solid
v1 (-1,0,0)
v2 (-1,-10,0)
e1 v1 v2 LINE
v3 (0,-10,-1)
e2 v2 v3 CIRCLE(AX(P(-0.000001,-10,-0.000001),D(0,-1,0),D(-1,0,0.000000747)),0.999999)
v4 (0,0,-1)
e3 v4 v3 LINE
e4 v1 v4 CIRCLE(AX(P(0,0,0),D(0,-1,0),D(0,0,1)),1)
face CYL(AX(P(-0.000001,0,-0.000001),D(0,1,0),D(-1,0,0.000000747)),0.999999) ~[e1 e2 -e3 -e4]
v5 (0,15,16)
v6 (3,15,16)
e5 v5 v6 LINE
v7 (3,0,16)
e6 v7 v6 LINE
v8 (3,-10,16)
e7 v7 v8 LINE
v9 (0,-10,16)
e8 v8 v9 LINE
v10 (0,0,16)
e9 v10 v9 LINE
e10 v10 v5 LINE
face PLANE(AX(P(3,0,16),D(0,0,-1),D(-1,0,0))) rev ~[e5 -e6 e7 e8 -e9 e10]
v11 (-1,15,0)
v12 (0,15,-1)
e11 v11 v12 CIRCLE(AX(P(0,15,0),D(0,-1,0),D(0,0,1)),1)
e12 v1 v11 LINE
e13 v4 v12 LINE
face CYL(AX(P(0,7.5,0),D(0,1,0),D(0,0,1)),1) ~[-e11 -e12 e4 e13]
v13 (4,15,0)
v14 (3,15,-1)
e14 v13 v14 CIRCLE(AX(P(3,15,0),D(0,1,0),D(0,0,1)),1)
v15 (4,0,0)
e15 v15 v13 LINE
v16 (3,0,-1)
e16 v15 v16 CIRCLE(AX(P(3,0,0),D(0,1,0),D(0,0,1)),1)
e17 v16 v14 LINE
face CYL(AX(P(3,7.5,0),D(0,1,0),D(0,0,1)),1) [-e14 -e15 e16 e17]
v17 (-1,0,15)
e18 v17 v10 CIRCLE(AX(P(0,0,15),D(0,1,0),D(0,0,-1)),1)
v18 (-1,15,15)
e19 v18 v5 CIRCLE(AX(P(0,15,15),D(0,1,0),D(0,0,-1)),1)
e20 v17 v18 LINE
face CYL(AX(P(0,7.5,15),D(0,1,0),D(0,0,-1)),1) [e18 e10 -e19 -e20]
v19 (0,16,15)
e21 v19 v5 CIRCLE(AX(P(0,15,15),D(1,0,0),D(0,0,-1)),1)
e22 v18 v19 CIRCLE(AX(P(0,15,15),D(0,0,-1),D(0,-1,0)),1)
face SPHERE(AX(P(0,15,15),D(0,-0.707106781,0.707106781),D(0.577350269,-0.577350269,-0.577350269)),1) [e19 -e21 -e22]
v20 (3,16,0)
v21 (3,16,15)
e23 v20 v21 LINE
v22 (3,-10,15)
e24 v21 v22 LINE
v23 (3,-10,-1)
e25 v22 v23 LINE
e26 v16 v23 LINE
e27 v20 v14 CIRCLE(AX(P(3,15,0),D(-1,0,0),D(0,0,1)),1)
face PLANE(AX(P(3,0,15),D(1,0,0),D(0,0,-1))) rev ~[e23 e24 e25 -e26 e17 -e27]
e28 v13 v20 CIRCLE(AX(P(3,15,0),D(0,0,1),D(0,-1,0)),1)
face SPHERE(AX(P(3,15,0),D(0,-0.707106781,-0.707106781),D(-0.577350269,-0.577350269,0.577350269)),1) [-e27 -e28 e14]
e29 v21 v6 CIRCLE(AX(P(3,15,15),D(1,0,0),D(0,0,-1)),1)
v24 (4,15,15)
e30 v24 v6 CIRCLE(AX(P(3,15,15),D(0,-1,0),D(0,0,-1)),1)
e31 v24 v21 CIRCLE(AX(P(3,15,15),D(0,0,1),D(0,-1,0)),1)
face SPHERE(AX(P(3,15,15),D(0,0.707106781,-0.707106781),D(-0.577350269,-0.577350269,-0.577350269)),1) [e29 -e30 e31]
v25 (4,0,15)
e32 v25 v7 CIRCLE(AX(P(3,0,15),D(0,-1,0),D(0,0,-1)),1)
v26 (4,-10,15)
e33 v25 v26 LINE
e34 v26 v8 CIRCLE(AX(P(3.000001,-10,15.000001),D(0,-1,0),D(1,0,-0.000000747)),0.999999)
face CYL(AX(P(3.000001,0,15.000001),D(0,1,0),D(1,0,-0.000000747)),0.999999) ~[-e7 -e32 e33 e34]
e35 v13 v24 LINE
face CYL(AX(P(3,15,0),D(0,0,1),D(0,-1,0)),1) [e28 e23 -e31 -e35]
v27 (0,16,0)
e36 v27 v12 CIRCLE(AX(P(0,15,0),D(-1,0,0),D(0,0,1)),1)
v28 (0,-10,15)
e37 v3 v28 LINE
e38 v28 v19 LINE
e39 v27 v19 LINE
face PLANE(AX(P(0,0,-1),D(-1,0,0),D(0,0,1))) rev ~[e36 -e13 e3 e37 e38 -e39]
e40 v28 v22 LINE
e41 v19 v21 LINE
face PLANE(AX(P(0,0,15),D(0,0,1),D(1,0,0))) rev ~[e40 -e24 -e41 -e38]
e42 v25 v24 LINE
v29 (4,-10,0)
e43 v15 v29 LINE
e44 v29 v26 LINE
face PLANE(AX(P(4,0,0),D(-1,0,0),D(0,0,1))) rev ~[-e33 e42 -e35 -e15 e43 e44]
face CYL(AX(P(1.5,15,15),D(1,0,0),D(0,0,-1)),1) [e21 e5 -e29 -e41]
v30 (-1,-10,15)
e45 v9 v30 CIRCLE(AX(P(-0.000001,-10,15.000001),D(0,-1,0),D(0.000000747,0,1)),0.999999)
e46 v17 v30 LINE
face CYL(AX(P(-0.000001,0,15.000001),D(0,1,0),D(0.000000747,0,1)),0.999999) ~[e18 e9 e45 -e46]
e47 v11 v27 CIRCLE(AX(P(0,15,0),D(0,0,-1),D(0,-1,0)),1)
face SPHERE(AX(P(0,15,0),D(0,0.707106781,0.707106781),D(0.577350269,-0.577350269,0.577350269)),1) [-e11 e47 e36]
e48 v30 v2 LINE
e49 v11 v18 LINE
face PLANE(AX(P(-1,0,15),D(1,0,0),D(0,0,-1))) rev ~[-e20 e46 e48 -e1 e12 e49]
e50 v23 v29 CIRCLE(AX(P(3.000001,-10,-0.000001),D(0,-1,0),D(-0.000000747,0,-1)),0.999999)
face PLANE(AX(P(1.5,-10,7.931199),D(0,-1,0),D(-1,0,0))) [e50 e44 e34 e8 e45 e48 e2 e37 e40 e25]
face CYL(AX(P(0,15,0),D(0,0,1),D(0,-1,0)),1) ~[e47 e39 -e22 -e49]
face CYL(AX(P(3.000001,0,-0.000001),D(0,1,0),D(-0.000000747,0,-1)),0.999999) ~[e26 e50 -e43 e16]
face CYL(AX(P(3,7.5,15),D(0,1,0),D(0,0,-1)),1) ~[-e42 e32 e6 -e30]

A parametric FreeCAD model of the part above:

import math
import FreeCAD as App
import Part
import Sketcher

V = App.Vector
Q = App.Units.Quantity


def faces_at(feature, points):
    """Names of the faces that lie closest to the given points."""
    faces = feature.Shape.Faces
    near = lambda p: min(range(len(faces)), key=lambda i: faces[i].distToShape(Part.Vertex(*p))[0])
    return sorted({f"Face{near(p) + 1}" for p in points})


def add_polygon(sketch, points):
    """Adds a closed chain of lines whose ends are joined by coincident constraints."""
    first, n = sketch.GeometryCount, len(points)
    for a, b in zip(points, points[1:] + points[:1]):
        sketch.addGeometry(Part.LineSegment(App.Vector(*a, 0), App.Vector(*b, 0)), False)
    for i in range(n):
        sketch.addConstraint(Sketcher.Constraint("Coincident", first + i, 2, first + (i + 1) % n, 1))

doc = App.newDocument("Part")
params = doc.addObject("Spreadsheet::Sheet", "Params")
for row, (alias, value) in enumerate([
    ("sketch1_width", "3 mm"),
    ("sketch1_height", "15 mm"),
    ("pad1_length", "15 mm"),
    ("thickness_wall", "1 mm"),
    ("sketch2_width", "3 mm"),
    ("sketch2_height", "15 mm"),
    ("pocket1_length", "5 mm"),
    ("sketch3_width", "3 mm"),
    ("sketch3_height", "15 mm"),
    ("pocket2_length", "5 mm"),
    ("sketch4_width", "3 mm"),
    ("sketch4_height", "1 mm"),
    ("pocket3_length", "5 mm"),
    ("sketch5_radius", "0.999999 mm"),
    ("sketch5_width", "3 mm"),
    ("sketch5_height", "16 mm"),
    ("pad2_length", "10 mm"),
], start=1):
    params.set(f"A{row}", alias)
    params.set(f"B{row}", "=" + value)
    params.setAlias(f"B{row}", alias)

body = doc.addObject("PartDesign::Body", "Body")

sketch1 = body.newObject("Sketcher::SketchObject", "Sketch")
sketch1.AttachmentSupport = (doc.getObject("XY_Plane"), [""])
sketch1.MapMode = "FlatFace"
add_polygon(sketch1, [(0, 15), (0, 0), (3, 0), (3, 15)])
sketch1.addConstraint(Sketcher.Constraint("Vertical", 0))
sketch1.addConstraint(Sketcher.Constraint("Horizontal", 1))
sketch1.addConstraint(Sketcher.Constraint("Vertical", 2))
sketch1.addConstraint(Sketcher.Constraint("Horizontal", 3))
sketch1.addConstraint(Sketcher.Constraint("Coincident", 0, 2, -1, 1))
sketch1.addConstraint(Sketcher.Constraint("DistanceX", 1, 1, 1, 2, Q("3 mm")))
sketch1.addConstraint(Sketcher.Constraint("DistanceY", 0, 2, 0, 1, Q("15 mm")))
sketch1.setExpression("Constraints[9]", "Params.sketch1_width")
sketch1.setExpression("Constraints[10]", "Params.sketch1_height")
pad1 = body.newObject("PartDesign::Pad", "Pad")
pad1.Profile = sketch1
pad1.setExpression("Length", "Params.pad1_length")
doc.recompute()

thickness = body.newObject("PartDesign::Thickness", "Thickness")
thickness.Base = (pad1, faces_at(pad1, [(1.5, 0, 7.5)]))
thickness.setExpression("Value", "Params.thickness_wall")
thickness.Reversed = False
thickness.Join = "Arc"

sketch2 = body.newObject("Sketcher::SketchObject", "Sketch001")
sketch2.AttachmentSupport = (doc.getObject("XZ_Plane"), [""])
sketch2.MapMode = "FlatFace"
sketch2.AttachmentOffset = App.Placement(V(0, 0, -15), App.Rotation())
add_polygon(sketch2, [(3, 0), (3, 15), (0, 15), (0, 0)])
sketch2.addConstraint(Sketcher.Constraint("Vertical", 0))
sketch2.addConstraint(Sketcher.Constraint("Horizontal", 1))
sketch2.addConstraint(Sketcher.Constraint("Vertical", 2))
sketch2.addConstraint(Sketcher.Constraint("Horizontal", 3))
sketch2.addConstraint(Sketcher.Constraint("Coincident", 2, 2, -1, 1))
sketch2.addConstraint(Sketcher.Constraint("DistanceX", 1, 2, 1, 1, Q("3 mm")))
sketch2.addConstraint(Sketcher.Constraint("DistanceY", 0, 1, 0, 2, Q("15 mm")))
sketch2.setExpression("Constraints[9]", "Params.sketch2_width")
sketch2.setExpression("Constraints[10]", "Params.sketch2_height")
pocket1 = body.newObject("PartDesign::Pocket", "Pocket")
pocket1.Profile = sketch2
pocket1.setExpression("Length", "Params.pocket1_length")

sketch3 = body.newObject("Sketcher::SketchObject", "Sketch002")
sketch3.AttachmentSupport = (doc.getObject("XY_Plane"), [""])
sketch3.MapMode = "FlatFace"
add_polygon(sketch3, [(0, 0), (3, 0), (3, 15), (0, 15)])
sketch3.addConstraint(Sketcher.Constraint("Horizontal", 0))
sketch3.addConstraint(Sketcher.Constraint("Vertical", 1))
sketch3.addConstraint(Sketcher.Constraint("Horizontal", 2))
sketch3.addConstraint(Sketcher.Constraint("Vertical", 3))
sketch3.addConstraint(Sketcher.Constraint("Coincident", 3, 2, -1, 1))
sketch3.addConstraint(Sketcher.Constraint("DistanceX", 0, 1, 0, 2, Q("3 mm")))
sketch3.addConstraint(Sketcher.Constraint("DistanceY", 1, 1, 1, 2, Q("15 mm")))
sketch3.setExpression("Constraints[9]", "Params.sketch3_width")
sketch3.setExpression("Constraints[10]", "Params.sketch3_height")
pocket2 = body.newObject("PartDesign::Pocket", "Pocket001")
pocket2.Profile = sketch3
pocket2.setExpression("Length", "Params.pocket2_length")

sketch4 = body.newObject("Sketcher::SketchObject", "Sketch003")
sketch4.AttachmentSupport = (doc.getObject("XZ_Plane"), [""])
sketch4.MapMode = "FlatFace"
sketch4.AttachmentOffset = App.Placement(V(0, 0, -15), App.Rotation())
add_polygon(sketch4, [(3, -1), (3, 0), (0, 0), (0, -1)])
sketch4.addConstraint(Sketcher.Constraint("Vertical", 0))
sketch4.addConstraint(Sketcher.Constraint("Horizontal", 1))
sketch4.addConstraint(Sketcher.Constraint("Vertical", 2))
sketch4.addConstraint(Sketcher.Constraint("Horizontal", 3))
sketch4.addConstraint(Sketcher.Constraint("Coincident", 1, 2, -1, 1))
sketch4.addConstraint(Sketcher.Constraint("DistanceX", 1, 2, 1, 1, Q("3 mm")))
sketch4.addConstraint(Sketcher.Constraint("DistanceY", 0, 1, 0, 2, Q("1 mm")))
sketch4.setExpression("Constraints[9]", "Params.sketch4_width")
sketch4.setExpression("Constraints[10]", "Params.sketch4_height")
pocket3 = body.newObject("PartDesign::Pocket", "Pocket002")
pocket3.Profile = sketch4
pocket3.setExpression("Length", "Params.pocket3_length")

sketch5 = body.newObject("Sketcher::SketchObject", "Sketch004")
sketch5.AttachmentSupport = (doc.getObject("XZ_Plane"), [""])
sketch5.MapMode = "FlatFace"
sketch5.addGeometry(Part.LineSegment(V(0, 15, 0), V(3, 15, 0)), False)
sketch5.addGeometry(Part.LineSegment(V(3, 15, 0), V(3, -1, 0)), False)
sketch5.addGeometry(Part.ArcOfCircle(Part.Circle(V(3.000001, -0.000001, 0), V(0, 0, 1), 0.999999), math.radians(-90.000043), math.radians(0.000043)), False)
sketch5.addGeometry(Part.LineSegment(V(4, 0, 0), V(4, 15, 0)), False)
sketch5.addGeometry(Part.ArcOfCircle(Part.Circle(V(3.000001, 15.000001, 0), V(0, 0, 1), 0.999999), math.radians(-0.000043), math.radians(90.000043)), False)
sketch5.addGeometry(Part.LineSegment(V(3, 16, 0), V(0, 16, 0)), False)
sketch5.addGeometry(Part.ArcOfCircle(Part.Circle(V(-0.000001, 15.000001, 0), V(0, 0, 1), 0.999999), math.radians(89.999957), math.radians(180.000043)), False)
sketch5.addGeometry(Part.LineSegment(V(-1, 15, 0), V(-1, 0, 0)), False)
sketch5.addGeometry(Part.ArcOfCircle(Part.Circle(V(-0.000001, -0.000001, 0), V(0, 0, 1), 0.999999), math.radians(179.999957), math.radians(270.000043)), False)
sketch5.addGeometry(Part.LineSegment(V(0, -1, 0), V(0, 15, 0)), False)
sketch5.addConstraint(Sketcher.Constraint("Coincident", 0, 2, 1, 1))
sketch5.addConstraint(Sketcher.Constraint("Coincident", 1, 2, 2, 1))
sketch5.addConstraint(Sketcher.Constraint("Tangent", 2, 2, 3, 1))
sketch5.addConstraint(Sketcher.Constraint("Tangent", 3, 2, 4, 1))
sketch5.addConstraint(Sketcher.Constraint("Tangent", 4, 2, 5, 1))
sketch5.addConstraint(Sketcher.Constraint("Tangent", 5, 2, 6, 1))
sketch5.addConstraint(Sketcher.Constraint("Tangent", 6, 2, 7, 1))
sketch5.addConstraint(Sketcher.Constraint("Tangent", 7, 2, 8, 1))
sketch5.addConstraint(Sketcher.Constraint("Coincident", 8, 2, 9, 1))
sketch5.addConstraint(Sketcher.Constraint("Coincident", 9, 2, 0, 1))
sketch5.addConstraint(Sketcher.Constraint("Horizontal", 0))
sketch5.addConstraint(Sketcher.Constraint("Vertical", 1))
sketch5.addConstraint(Sketcher.Constraint("Vertical", 3))
sketch5.addConstraint(Sketcher.Constraint("Horizontal", 5))
sketch5.addConstraint(Sketcher.Constraint("Vertical", 7))
sketch5.addConstraint(Sketcher.Constraint("Vertical", 9))
sketch5.addConstraint(Sketcher.Constraint("Coincident", 8, 3, -1, 1))
sketch5.addConstraint(Sketcher.Constraint("Coincident", 0, 2, 4, 3))
sketch5.addConstraint(Sketcher.Constraint("Coincident", 9, 2, 6, 3))
sketch5.addConstraint(Sketcher.Constraint("Equal", 2, 4))
sketch5.addConstraint(Sketcher.Constraint("Equal", 6, 8))
sketch5.addConstraint(Sketcher.Constraint("PointOnObject", 2, 3, -1))
sketch5.addConstraint(Sketcher.Constraint("Radius", 2, Q("0.999999 mm")))
sketch5.addConstraint(Sketcher.Constraint("DistanceX", 0, 1, 0, 2, Q("3 mm")))
sketch5.addConstraint(Sketcher.Constraint("DistanceY", 1, 2, 1, 1, Q("16 mm")))
sketch5.setExpression("Constraints[22]", "Params.sketch5_radius")
sketch5.setExpression("Constraints[23]", "Params.sketch5_width")
sketch5.setExpression("Constraints[24]", "Params.sketch5_height")
pad2 = body.newObject("PartDesign::Pad", "Pad001")
pad2.Profile = sketch5
pad2.setExpression("Length", "Params.pad2_length")

doc.recompute()
